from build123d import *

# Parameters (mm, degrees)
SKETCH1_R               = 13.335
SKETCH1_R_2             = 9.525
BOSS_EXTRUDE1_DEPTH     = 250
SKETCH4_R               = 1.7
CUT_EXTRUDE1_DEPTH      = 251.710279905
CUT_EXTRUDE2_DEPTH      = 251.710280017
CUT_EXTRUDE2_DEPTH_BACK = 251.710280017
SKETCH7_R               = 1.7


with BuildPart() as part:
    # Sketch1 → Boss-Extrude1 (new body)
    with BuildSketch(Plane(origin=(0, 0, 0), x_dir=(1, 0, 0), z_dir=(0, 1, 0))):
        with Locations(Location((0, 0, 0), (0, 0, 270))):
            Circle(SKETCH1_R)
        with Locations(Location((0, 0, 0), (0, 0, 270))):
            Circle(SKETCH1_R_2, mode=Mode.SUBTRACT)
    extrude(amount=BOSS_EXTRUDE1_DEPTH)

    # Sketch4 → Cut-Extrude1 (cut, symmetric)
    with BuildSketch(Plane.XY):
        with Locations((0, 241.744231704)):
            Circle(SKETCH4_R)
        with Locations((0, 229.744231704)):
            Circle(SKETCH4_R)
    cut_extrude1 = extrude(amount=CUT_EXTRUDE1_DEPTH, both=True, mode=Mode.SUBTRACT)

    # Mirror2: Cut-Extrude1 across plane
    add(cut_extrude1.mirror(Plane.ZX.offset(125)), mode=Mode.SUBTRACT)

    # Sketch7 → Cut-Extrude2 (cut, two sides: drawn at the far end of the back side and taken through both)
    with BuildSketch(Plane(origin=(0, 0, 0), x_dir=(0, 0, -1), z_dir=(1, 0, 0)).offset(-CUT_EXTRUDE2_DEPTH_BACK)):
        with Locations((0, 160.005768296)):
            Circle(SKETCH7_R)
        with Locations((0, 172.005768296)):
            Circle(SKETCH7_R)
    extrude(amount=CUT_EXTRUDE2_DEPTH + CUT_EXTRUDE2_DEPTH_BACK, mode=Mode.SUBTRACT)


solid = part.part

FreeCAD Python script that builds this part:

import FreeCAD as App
import Part
import Sketcher

V = App.Vector
Q = App.Units.Quantity

doc = App.newDocument("Part")
body = doc.addObject("PartDesign::Body", "Body")

sketch1 = body.newObject("Sketcher::SketchObject", "Sketch")
sketch1.AttachmentSupport = (doc.getObject("XZ_Plane"), [""])
sketch1.MapMode = "FlatFace"
sketch1.addGeometry(Part.Circle(V(0, 0, 0), V(0, 0, 1), 13), False)
sketch1.addGeometry(Part.Circle(V(0, 0, 0), V(0, 0, 1), 10), False)
sketch1.addConstraint(Sketcher.Constraint("Coincident", 0, 3, -1, 1))
sketch1.addConstraint(Sketcher.Constraint("Coincident", 1, 3, -1, 1))
sketch1.addConstraint(Sketcher.Constraint("Diameter", 0, Q("26.67 mm")))
sketch1.addConstraint(Sketcher.Constraint("Diameter", 1, Q("19.05 mm")))
pad1 = body.newObject("PartDesign::Pad", "Pad")
pad1.Profile = sketch1
pad1.Length = 250
pad1.Reversed = True

sketch2 = body.newObject("Sketcher::SketchObject", "Sketch001")
sketch2.AttachmentSupport = (doc.getObject("XY_Plane"), [""])
sketch2.MapMode = "FlatFace"
sketch2.addGeometry(Part.Circle(V(0, 241.7, 0), V(0, 0, 1), 1.7), False)
sketch2.addGeometry(Part.Circle(V(0, 229.7, 0), V(0, 0, 1), 1.7), False)
sketch2.addConstraint(Sketcher.Constraint("Equal", 0, 1))
sketch2.addConstraint(Sketcher.Constraint("PointOnObject", 0, 3, -2))
sketch2.addConstraint(Sketcher.Constraint("PointOnObject", 1, 3, -2))
sketch2.addConstraint(Sketcher.Constraint("Diameter", 0, Q("3.4 mm")))
sketch2.addConstraint(Sketcher.Constraint("DistanceY", 1, 3, 0, 3, Q("12 mm")))
sketch2.addConstraint(Sketcher.Constraint("DistanceY", -1, 1, 0, 3, Q("241.744232 mm")))
pocket1 = body.newObject("PartDesign::Pocket", "Pocket")
pocket1.Profile = sketch2
pocket1.Length = 503.42056
pocket1.Midplane = True
doc.recompute()

datumplane = body.newObject("PartDesign::Plane", "DatumPlane")
datumplane.AttachmentSupport = (doc.getObject("XZ_Plane"), [""])
datumplane.MapMode = "FlatFace"
datumplane.AttachmentOffset = App.Placement(V(0, 0, -125), App.Rotation())
mirrored = body.newObject("PartDesign::Mirrored", "Mirrored")
mirrored.Originals = [pocket1]
mirrored.MirrorPlane = (datumplane, [""])
body.Tip = mirrored

sketch3 = body.newObject("Sketcher::SketchObject", "Sketch002")
sketch3.AttachmentSupport = (doc.getObject("YZ_Plane"), [""])
sketch3.MapMode = "FlatFace"
sketch3.addGeometry(Part.Circle(V(160, 0, 0), V(0, 0, 1), 1.7), False)
sketch3.addGeometry(Part.Circle(V(172, 0, 0), V(0, 0, 1), 1.7), False)
sketch3.addConstraint(Sketcher.Constraint("Equal", 0, 1))
sketch3.addConstraint(Sketcher.Constraint("PointOnObject", 0, 3, -1))
sketch3.addConstraint(Sketcher.Constraint("PointOnObject", 1, 3, -1))
sketch3.addConstraint(Sketcher.Constraint("Diameter", 0, Q("3.4 mm")))
sketch3.addConstraint(Sketcher.Constraint("DistanceX", 0, 3, 1, 3, Q("12 mm")))
sketch3.addConstraint(Sketcher.Constraint("DistanceX", -1, 1, 0, 3, Q("160.005768 mm")))
pocket2 = body.newObject("PartDesign::Pocket", "Pocket001")
pocket2.Profile = sketch3
pocket2.Type = "ThroughAll"
pocket2.Midplane = True

doc.recompute()
